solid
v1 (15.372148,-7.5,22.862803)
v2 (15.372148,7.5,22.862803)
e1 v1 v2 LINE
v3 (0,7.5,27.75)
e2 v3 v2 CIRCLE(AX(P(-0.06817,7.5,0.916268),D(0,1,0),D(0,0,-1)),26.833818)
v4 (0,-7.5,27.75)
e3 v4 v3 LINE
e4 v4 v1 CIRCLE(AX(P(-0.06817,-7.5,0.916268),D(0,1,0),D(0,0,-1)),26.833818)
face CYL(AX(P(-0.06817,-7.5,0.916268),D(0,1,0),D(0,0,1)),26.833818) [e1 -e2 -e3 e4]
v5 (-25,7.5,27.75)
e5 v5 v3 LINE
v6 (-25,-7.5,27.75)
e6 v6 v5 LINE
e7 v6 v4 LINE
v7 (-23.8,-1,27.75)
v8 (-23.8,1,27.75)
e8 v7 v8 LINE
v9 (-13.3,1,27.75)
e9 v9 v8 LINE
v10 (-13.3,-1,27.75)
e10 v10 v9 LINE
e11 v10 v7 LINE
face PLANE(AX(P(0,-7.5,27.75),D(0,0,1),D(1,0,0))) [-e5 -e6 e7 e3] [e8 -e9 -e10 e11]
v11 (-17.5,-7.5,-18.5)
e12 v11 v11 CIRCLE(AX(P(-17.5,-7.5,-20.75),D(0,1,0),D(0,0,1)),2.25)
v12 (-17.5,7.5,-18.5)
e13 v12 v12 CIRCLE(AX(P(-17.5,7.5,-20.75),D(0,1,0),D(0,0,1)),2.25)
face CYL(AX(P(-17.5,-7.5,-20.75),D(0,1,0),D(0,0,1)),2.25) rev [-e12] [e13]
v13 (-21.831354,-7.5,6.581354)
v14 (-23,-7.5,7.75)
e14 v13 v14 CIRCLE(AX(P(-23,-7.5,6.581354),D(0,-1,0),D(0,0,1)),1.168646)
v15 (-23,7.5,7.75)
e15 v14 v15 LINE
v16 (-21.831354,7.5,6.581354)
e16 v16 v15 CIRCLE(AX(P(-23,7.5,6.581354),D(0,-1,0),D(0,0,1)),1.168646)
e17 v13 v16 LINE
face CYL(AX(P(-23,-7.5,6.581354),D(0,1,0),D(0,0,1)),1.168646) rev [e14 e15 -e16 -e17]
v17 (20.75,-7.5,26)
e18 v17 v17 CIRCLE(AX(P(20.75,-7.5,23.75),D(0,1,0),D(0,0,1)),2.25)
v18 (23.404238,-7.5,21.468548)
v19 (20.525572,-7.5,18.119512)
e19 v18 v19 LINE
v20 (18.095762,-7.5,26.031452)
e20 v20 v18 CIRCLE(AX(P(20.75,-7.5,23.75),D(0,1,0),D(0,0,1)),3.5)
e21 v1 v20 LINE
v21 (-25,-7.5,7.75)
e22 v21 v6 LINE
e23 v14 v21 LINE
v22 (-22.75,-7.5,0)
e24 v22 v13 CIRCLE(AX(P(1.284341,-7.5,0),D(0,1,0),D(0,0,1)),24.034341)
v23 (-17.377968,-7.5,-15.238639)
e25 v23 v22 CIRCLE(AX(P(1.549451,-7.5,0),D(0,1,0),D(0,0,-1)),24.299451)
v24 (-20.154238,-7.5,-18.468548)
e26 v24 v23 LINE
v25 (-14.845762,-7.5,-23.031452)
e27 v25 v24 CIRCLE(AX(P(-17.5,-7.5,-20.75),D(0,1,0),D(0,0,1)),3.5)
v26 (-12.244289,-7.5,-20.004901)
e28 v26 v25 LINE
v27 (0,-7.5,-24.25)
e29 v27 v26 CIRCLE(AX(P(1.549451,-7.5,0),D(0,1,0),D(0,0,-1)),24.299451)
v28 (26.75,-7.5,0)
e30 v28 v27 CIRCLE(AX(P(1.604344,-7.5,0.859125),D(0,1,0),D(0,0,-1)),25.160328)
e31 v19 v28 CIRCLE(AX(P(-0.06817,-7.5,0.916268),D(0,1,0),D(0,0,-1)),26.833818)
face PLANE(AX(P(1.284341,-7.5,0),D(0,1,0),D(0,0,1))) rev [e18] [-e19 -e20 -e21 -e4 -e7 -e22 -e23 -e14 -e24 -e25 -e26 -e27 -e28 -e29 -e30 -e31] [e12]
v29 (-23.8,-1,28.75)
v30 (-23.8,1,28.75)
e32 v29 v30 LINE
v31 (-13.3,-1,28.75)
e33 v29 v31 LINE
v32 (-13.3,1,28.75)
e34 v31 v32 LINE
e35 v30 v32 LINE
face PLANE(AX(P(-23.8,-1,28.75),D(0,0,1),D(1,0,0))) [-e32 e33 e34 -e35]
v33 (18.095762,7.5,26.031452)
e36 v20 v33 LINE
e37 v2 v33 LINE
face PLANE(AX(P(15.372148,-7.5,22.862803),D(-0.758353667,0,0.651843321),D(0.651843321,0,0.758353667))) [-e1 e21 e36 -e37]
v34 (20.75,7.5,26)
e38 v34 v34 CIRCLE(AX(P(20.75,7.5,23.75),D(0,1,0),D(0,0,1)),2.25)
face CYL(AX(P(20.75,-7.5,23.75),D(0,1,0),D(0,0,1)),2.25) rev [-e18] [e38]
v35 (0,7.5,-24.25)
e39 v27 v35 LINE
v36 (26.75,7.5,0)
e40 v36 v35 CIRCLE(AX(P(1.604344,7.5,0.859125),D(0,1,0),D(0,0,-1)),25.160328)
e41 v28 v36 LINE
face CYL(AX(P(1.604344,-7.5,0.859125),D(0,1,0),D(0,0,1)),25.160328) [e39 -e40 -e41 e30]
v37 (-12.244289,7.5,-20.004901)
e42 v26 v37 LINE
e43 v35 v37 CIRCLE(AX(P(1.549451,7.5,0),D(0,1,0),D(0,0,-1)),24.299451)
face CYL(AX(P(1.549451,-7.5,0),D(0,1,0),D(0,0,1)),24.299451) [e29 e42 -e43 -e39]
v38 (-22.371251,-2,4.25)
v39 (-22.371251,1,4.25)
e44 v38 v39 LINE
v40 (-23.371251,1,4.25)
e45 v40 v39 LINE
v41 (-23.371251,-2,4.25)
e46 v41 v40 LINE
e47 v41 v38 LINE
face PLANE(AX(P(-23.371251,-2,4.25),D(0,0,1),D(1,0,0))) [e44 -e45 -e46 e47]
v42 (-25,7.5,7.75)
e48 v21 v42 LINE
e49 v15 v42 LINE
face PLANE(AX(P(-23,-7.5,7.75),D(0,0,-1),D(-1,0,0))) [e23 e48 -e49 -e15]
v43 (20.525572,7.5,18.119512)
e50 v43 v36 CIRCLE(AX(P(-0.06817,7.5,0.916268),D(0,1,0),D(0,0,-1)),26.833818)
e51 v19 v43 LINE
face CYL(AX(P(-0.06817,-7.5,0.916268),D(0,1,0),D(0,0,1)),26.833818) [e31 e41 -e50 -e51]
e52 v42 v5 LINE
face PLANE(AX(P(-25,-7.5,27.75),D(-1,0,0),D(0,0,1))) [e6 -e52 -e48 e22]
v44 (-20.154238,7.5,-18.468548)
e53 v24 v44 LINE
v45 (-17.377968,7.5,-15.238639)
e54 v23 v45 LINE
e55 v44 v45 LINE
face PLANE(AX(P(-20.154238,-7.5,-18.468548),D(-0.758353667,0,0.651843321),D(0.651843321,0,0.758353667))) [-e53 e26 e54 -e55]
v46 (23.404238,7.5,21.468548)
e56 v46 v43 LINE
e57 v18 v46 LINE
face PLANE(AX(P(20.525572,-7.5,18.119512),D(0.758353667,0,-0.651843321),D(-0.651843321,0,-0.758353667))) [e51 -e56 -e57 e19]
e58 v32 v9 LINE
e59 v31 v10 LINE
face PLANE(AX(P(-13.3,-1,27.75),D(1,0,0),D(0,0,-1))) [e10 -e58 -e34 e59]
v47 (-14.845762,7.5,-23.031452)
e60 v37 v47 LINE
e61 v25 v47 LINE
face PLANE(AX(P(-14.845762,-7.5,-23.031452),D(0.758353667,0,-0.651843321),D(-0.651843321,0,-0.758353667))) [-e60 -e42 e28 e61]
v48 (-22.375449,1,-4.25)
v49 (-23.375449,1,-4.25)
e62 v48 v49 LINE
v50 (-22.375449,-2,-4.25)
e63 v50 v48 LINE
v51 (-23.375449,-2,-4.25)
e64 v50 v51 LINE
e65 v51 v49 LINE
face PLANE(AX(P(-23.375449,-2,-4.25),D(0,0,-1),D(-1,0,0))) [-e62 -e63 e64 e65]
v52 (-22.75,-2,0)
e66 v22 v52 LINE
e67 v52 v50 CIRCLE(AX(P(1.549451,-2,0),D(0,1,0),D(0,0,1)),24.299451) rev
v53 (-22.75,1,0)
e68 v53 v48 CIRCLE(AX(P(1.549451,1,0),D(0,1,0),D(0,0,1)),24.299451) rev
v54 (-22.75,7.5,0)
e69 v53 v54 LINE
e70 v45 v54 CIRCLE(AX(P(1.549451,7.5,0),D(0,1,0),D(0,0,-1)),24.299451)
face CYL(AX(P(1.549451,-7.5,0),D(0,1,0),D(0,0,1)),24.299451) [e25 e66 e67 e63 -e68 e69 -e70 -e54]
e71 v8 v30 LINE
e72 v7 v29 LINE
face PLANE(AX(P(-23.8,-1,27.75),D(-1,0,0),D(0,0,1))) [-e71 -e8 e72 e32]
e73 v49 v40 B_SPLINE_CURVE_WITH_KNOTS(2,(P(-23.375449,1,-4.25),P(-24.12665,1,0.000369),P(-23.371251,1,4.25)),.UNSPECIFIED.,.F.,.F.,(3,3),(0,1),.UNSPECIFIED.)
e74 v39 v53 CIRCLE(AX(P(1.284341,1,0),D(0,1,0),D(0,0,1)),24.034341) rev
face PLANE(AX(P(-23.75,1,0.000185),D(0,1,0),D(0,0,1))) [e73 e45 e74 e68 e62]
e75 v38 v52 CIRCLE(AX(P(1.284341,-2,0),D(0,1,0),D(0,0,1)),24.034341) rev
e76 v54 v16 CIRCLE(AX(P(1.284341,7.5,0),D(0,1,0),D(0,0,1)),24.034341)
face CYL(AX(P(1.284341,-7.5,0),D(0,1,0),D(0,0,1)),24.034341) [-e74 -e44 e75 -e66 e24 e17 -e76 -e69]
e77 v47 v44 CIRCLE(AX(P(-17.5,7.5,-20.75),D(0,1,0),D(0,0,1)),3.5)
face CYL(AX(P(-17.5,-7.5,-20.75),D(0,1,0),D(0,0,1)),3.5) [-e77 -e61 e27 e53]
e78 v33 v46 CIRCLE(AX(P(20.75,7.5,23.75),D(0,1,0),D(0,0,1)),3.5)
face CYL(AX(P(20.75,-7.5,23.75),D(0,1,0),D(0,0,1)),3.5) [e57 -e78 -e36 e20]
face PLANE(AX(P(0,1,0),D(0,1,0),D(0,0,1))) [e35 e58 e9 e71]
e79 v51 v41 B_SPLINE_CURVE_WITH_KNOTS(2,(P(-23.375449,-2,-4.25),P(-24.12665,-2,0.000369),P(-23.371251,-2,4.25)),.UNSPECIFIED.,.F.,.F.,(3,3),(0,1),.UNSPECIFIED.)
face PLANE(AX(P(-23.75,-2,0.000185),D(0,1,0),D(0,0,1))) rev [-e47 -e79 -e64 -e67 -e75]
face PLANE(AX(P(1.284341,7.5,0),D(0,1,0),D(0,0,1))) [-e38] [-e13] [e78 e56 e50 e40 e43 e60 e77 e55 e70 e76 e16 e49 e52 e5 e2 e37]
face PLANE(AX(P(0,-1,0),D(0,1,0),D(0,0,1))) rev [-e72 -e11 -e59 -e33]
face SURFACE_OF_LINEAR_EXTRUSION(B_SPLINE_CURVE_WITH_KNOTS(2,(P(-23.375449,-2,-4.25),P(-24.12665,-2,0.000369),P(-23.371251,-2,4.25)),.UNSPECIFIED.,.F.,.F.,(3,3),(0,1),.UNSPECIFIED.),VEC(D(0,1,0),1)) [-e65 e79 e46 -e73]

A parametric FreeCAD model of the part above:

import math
import FreeCAD as App
import Part
import Sketcher


def add_polygon(sketch, points):
    """Adds a closed chain of lines whose ends are joined by coincident constraints."""
    first, n = sketch.GeometryCount, len(points)
    for a, b in zip(points, points[1:] + points[:1]):
        sketch.addGeometry(Part.LineSegment(App.Vector(*a, 0), App.Vector(*b, 0)), False)
    for i in range(n):
        sketch.addConstraint(Sketcher.Constraint("Coincident", first + i, 2, first + (i + 1) % n, 1))

doc = App.newDocument("Part")
body = doc.addObject("PartDesign::Body", "Body")

sketch1 = body.newObject("Sketcher::SketchObject", "Sketch")
sketch1.AttachmentSupport = (doc.getObject("XZ_Plane"), [""])
sketch1.MapMode = "FlatFace"
sketch1.addGeometry([
    Part.LineSegment(App.Vector(-25, 27.8, 0), App.Vector(0, 27.8, 0)),
    Part.ArcOfCircle(Part.Circle(App.Vector(-0.1, 0.9, 0), App.Vector(0, 0, 1), 26.8), math.radians(55), math.radians(90)),
    Part.LineSegment(App.Vector(15.4, 22.9, 0), App.Vector(18.1, 26, 0)),
    Part.ArcOfCircle(Part.Circle(App.Vector(20.8, 23.8, 0), App.Vector(0, 0, 1), 3.5), math.radians(-41), math.radians(139)),
    Part.LineSegment(App.Vector(23.4, 21.5, 0), App.Vector(20.5, 18.1, 0)),
    Part.ArcOfCircle(Part.Circle(App.Vector(-0.1, 0.9, 0), App.Vector(0, 0, 1), 26.8), math.radians(-2), math.radians(40)),
    Part.ArcOfCircle(Part.Circle(App.Vector(1.6, 0.9, 0), App.Vector(0, 0, 1), 25.2), math.radians(-94), math.radians(-2)),
    Part.ArcOfCircle(Part.Circle(App.Vector(1.5, 0, 0), App.Vector(0, 0, 1), 24.3), math.radians(-125), math.radians(-94)),
    Part.LineSegment(App.Vector(-12.2, -20, 0), App.Vector(-14.8, -23, 0)),
    Part.ArcOfCircle(Part.Circle(App.Vector(-17.5, -20.8, 0), App.Vector(0, 0, 1), 3.5), math.radians(139), math.radians(319)),
    Part.LineSegment(App.Vector(-20.2, -18.5, 0), App.Vector(-17.4, -15.2, 0)),
    Part.ArcOfCircle(Part.Circle(App.Vector(1.5, 0, 0), App.Vector(0, 0, 1), 24.3), math.radians(180), math.radians(219)),
    Part.ArcOfCircle(Part.Circle(App.Vector(1.3, 0, 0), App.Vector(0, 0, 1), 24), math.radians(164.11), math.radians(180)),
    Part.ArcOfCircle(Part.Circle(App.Vector(-23, 6.6, 0), App.Vector(0, 0, 1), 1.2), math.radians(0), math.radians(90)),
    Part.LineSegment(App.Vector(-23, 7.8, 0), App.Vector(-25, 7.8, 0)),
    Part.LineSegment(App.Vector(-25, 7.8, 0), App.Vector(-25, 27.8, 0)),
    Part.Circle(App.Vector(20.8, 23.8, 0), App.Vector(0, 0, 1), 2.2),
    Part.Circle(App.Vector(-17.5, -20.8, 0), App.Vector(0, 0, 1), 2.2),
], False)
sketch1.addConstraint([
    Sketcher.Constraint("Coincident", 0, 2, 1, 2),
    Sketcher.Constraint("Coincident", 1, 1, 2, 1),
    Sketcher.Constraint("Tangent", 2, 2, 3, 2),
    Sketcher.Constraint("Tangent", 3, 1, 4, 1),
    Sketcher.Constraint("Coincident", 4, 2, 5, 2),
    Sketcher.Constraint("Tangent", 5, 1, 6, 2),
    Sketcher.Constraint("Tangent", 6, 1, 7, 2),
    Sketcher.Constraint("Coincident", 7, 1, 8, 1),
    Sketcher.Constraint("Tangent", 8, 2, 9, 2),
    Sketcher.Constraint("Tangent", 9, 1, 10, 1),
    Sketcher.Constraint("Coincident", 10, 2, 11, 2),
    Sketcher.Constraint("Tangent", 11, 1, 12, 2),
    Sketcher.Constraint("Coincident", 12, 1, 13, 1),
    Sketcher.Constraint("Tangent", 13, 2, 14, 1),
    Sketcher.Constraint("Coincident", 14, 2, 15, 1),
    Sketcher.Constraint("Coincident", 15, 2, 0, 1),
    Sketcher.Constraint("Horizontal", 0),
    Sketcher.Constraint("Horizontal", 14),
    Sketcher.Constraint("Vertical", 15),
    Sketcher.Constraint("Coincident", 5, 3, 1, 3),
    Sketcher.Constraint("Coincident", 11, 3, 7, 3),
    Sketcher.Constraint("Coincident", 16, 3, 3, 3),
    Sketcher.Constraint("Coincident", 17, 3, 9, 3),
    Sketcher.Constraint("Equal", 1, 5),
    Sketcher.Constraint("Equal", 3, 9),
    Sketcher.Constraint("Equal", 7, 11),
    Sketcher.Constraint("Equal", 16, 17),
    Sketcher.Constraint("PointOnObject", 7, 3, -1),
    Sketcher.Constraint("PointOnObject", 12, 3, -1),
    Sketcher.Constraint("PointOnObject", 0, 2, -2),
    Sketcher.Constraint("PointOnObject", 5, 1, -1),
    Sketcher.Constraint("PointOnObject", 6, 1, -2),
    Sketcher.Constraint("Parallel", 2, 4),
    Sketcher.Constraint("Parallel", 4, 8),
    Sketcher.Constraint("Parallel", 8, 10),
    Sketcher.Constraint("Horizontal", 13, 3, 12, 1),
    Sketcher.Constraint("Diameter", 16, 4.5),
    Sketcher.Constraint("Radius", 3, 3.5),
    Sketcher.Constraint("DistanceX", 0, 1, 0, 2, 25.0),
    Sketcher.Constraint("DistanceX", 14, 2, 14, 1, 2.0),
    Sketcher.Constraint("DistanceY", 15, 1, 15, 2, 20.0),
    Sketcher.Constraint("DistanceY", 3, 3, 0, 2, 4.0),
    Sketcher.Constraint("DistanceX", 3, 3, 5, 1, 6.0),
    Sketcher.Constraint("DistanceX", 9, 3, -1, 1, 17.5),
    Sketcher.Constraint("DistanceY", 9, 3, 3, 3, 44.5),
    Sketcher.Constraint("DistanceY", 6, 1, 9, 3, 3.5),
    Sketcher.Constraint("DistanceX", -1, 1, 3, 3, 20.75),
    Sketcher.Constraint("DistanceY", -1, 1, 3, 3, 23.75),
    Sketcher.Constraint("DistanceX", 11, 1, -1, 1, 22.75),
    Sketcher.Constraint("Radius", 12, 24.034341),
    Sketcher.Constraint("DistanceY", 7, 1, -1, 1, 20.004901),
])
pad1 = body.newObject("PartDesign::Pad", "Pad")
pad1.Profile = sketch1
pad1.Type = "TwoLengths"
pad1.Length = 7.5
pad1.Length2 = 7.5
pad1.Reversed = True

sketch2 = body.newObject("Sketcher::SketchObject", "Sketch001")
sketch2.AttachmentSupport = (doc.getObject("XZ_Plane"), [""])
sketch2.MapMode = "FlatFace"
sketch2.addGeometry([
    Part.LineSegment(App.Vector(-22.375449, -4.25, 0), App.Vector(-23.375449, -4.25, 0)),
    Part.BSplineCurve([App.Vector(-23.371251, 4.25, 0), App.Vector(-24.12665, 0.000369, 0), App.Vector(-23.375449, -4.25, 0)], [3, 3], [0, 1], False, 2, [1, 1, 1], False),
    Part.LineSegment(App.Vector(-23.371251, 4.25, 0), App.Vector(-22.371251, 4.25, 0)),
    Part.LineSegment(App.Vector(-22.371251, 4.25, 0), App.Vector(-20.106924, 2.963786, 0)),
    Part.LineSegment(App.Vector(-20.106924, 2.963786, 0), App.Vector(-20.47606, -3.242316, 0)),
    Part.LineSegment(App.Vector(-20.47606, -3.242316, 0), App.Vector(-22.375449, -4.25, 0)),
], False)
sketch2.addConstraint([
    Sketcher.Constraint("Block", 1),
    Sketcher.Constraint("Coincident", 0, 2, 1, 2),
    Sketcher.Constraint("Coincident", 1, 1, 2, 1),
    Sketcher.Constraint("Coincident", 2, 2, 3, 1),
    Sketcher.Constraint("Coincident", 3, 2, 4, 1),
    Sketcher.Constraint("Coincident", 4, 2, 5, 1),
    Sketcher.Constraint("Coincident", 5, 2, 0, 1),
    Sketcher.Constraint("Horizontal", 0),
    Sketcher.Constraint("Horizontal", 2),
    Sketcher.Constraint("Equal", 0, 2),
    Sketcher.Constraint("DistanceX", 0, 2, 0, 1, 1.0),
    Sketcher.Constraint("Distance", 4, 6.217071),
    Sketcher.Constraint("Distance", 5, 2.15014),
    Sketcher.Constraint("DistanceX", 4, 2, -1, 1, 20.47606),
    Sketcher.Constraint("Distance", 3, 2.604136),
])
pad2 = body.newObject("PartDesign::Pad", "Pad001")
pad2.Profile = sketch2
pad2.Type = "TwoLengths"
pad2.Length = 1
pad2.Length2 = 2
pad2.Reversed = True

sketch3 = body.newObject("Sketcher::SketchObject", "Sketch002")
sketch3.AttachmentSupport = (doc.getObject("XZ_Plane"), [""])
sketch3.MapMode = "FlatFace"
add_polygon(sketch3, [(-23.8, 27.8), (-23.8, 28.8), (-13.3, 28.8), (-13.3, 27.8)])
sketch3.addConstraint([
    Sketcher.Constraint("Vertical", 0),
    Sketcher.Constraint("Horizontal", 1),
    Sketcher.Constraint("Vertical", 2),
    Sketcher.Constraint("Horizontal", 3),
    Sketcher.Constraint("DistanceY", 0, 1, 0, 2, 1.0),
    Sketcher.Constraint("DistanceX", 1, 1, 1, 2, 10.5),
    Sketcher.Constraint("DistanceX", 0, 2, -1, 1, 23.8),
    Sketcher.Constraint("DistanceY", -1, 1, 0, 2, 28.75),
])
pad3 = body.newObject("PartDesign::Pad", "Pad002")
pad3.Profile = sketch3
pad3.Type = "TwoLengths"
pad3.Length = 1
pad3.Length2 = 1
pad3.Reversed = True

doc.recompute()
